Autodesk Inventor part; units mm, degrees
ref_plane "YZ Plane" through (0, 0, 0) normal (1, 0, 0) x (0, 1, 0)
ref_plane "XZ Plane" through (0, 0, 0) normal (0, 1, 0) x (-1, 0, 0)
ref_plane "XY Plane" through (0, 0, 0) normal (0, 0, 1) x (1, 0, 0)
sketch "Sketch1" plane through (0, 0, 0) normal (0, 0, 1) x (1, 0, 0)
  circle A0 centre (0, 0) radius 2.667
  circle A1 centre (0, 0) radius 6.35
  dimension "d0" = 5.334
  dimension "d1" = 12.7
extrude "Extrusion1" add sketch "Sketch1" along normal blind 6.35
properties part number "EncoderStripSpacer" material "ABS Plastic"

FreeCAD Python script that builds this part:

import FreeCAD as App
import Part
import Sketcher
Q = App.Units.Quantity

doc = App.newDocument("Part")
params = doc.addObject("Spreadsheet::Sheet", "Params")
for row, (alias, value) in enumerate([
    ("sketch1_diameter", "0.5 in"),
    ("sketch1_diameter2", "0.21 in"),
    ("pad1_length", "0.25 in"),
], start=1):
    params.set(f"A{row}", alias)
    params.set(f"B{row}", "=" + value)
    params.setAlias(f"B{row}", alias)

body = doc.addObject("PartDesign::Body", "Body")

# Sketch on XY plane
sketch1 = doc.addObject("Sketcher::SketchObject", "Sketch")
body.addObject(sketch1)
sketch1.AttachmentSupport = (doc.XY_Plane, [""])
sketch1.MapMode = "FlatFace"
sketch1.addGeometry(Part.Circle(App.Vector(0, 0, 0), App.Vector(0, 0, 1), 6.35), False)
sketch1.addGeometry(Part.Circle(App.Vector(0, 0, 0), App.Vector(0, 0, 1), 2.667), False)
sketch1.addConstraint(Sketcher.Constraint("Coincident", 0, 3, -1, 1))
sketch1.addConstraint(Sketcher.Constraint("Coincident", 1, 3, -1, 1))
sketch1.addConstraint(Sketcher.Constraint("Diameter", 0, Q("0.5 in")))
sketch1.addConstraint(Sketcher.Constraint("Diameter", 1, Q("0.21 in")))
sketch1.setExpression("Constraints[2]", "Params.sketch1_diameter")
sketch1.setExpression("Constraints[3]", "Params.sketch1_diameter2")
pad1 = doc.addObject("PartDesign::Pad", "Pad")
body.addObject(pad1)
pad1.Profile = sketch1
pad1.setExpression("Length", "Params.pad1_length")

doc.recompute()
